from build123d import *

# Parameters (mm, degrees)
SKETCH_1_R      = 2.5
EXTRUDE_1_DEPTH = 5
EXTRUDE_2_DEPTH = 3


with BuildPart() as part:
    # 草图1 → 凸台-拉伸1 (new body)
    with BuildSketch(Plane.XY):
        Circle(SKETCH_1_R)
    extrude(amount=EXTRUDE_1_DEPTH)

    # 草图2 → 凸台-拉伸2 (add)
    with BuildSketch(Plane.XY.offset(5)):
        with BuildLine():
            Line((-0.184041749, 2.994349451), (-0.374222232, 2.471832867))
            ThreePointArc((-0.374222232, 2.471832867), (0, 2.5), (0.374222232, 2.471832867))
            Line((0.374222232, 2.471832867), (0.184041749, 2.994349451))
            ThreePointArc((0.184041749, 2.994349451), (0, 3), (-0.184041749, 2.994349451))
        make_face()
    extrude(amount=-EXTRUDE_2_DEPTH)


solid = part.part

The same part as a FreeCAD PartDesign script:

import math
import FreeCAD as App
import Part
import Sketcher
Q = App.Units.Quantity

doc = App.newDocument("Part")
body = doc.addObject("PartDesign::Body", "Body")

# Sketch on XY plane
sketch1 = body.newObject("Sketcher::SketchObject", "Sketch")
sketch1.AttachmentSupport = (doc.getObject("XY_Plane"), [""])
sketch1.MapMode = "FlatFace"
sketch1.addGeometry(Part.Circle(App.Vector(0, 0, 0), App.Vector(0, 0, 1), 2.5), False)
sketch1.addConstraint([
    Sketcher.Constraint("Coincident", 0, 3, -1, 1),
    Sketcher.Constraint("Diameter", 0, Q("5 mm")),
])
pad1 = body.newObject("PartDesign::Pad", "Pad")
pad1.Profile = sketch1
pad1.Length = 5

# Sketch on XY plane
sketch2 = body.newObject("Sketcher::SketchObject", "Sketch001")
sketch2.AttachmentSupport = (doc.getObject("XY_Plane"), [""])
sketch2.MapMode = "FlatFace"
sketch2.AttachmentOffset = App.Placement(App.Vector(0, 0, 5), App.Rotation())
sketch2.addGeometry([
    Part.LineSegment(App.Vector(-0.18, 2.99, 0), App.Vector(-0.37, 2.47, 0)),
    Part.ArcOfCircle(Part.Circle(App.Vector(0, 0, 0), App.Vector(0, 0, 1), 2.5), math.radians(81.39), math.radians(98.61)),
    Part.LineSegment(App.Vector(0.37, 2.47, 0), App.Vector(0.18, 2.99, 0)),
    Part.ArcOfCircle(Part.Circle(App.Vector(0, 0, 0), App.Vector(0, 0, 1), 3), math.radians(86.48), math.radians(93.52)),
], False)
sketch2.addConstraint([
    Sketcher.Constraint("Coincident", 0, 2, 1, 2),
    Sketcher.Constraint("Coincident", 1, 1, 2, 1),
    Sketcher.Constraint("Coincident", 2, 2, 3, 1),
    Sketcher.Constraint("Coincident", 3, 2, 0, 1),
    Sketcher.Constraint("Coincident", 1, 3, -1, 1),
    Sketcher.Constraint("Coincident", 3, 3, -1, 1),
    Sketcher.Constraint("Horizontal", 0, 2, 1, 1),
    Sketcher.Constraint("Horizontal", 2, 2, 3, 2),
    Sketcher.Constraint("Radius", 3, Q("3 mm")),
    Sketcher.Constraint("Radius", 1, Q("2.5 mm")),
    Sketcher.Constraint("Angle", 0, Q("-110 deg")),
    Sketcher.Constraint("Distance", 0, Q("0.556051 mm")),
])
pad2 = body.newObject("PartDesign::Pad", "Pad001")
pad2.Profile = sketch2
pad2.Length = 3
pad2.Reversed = True

doc.recompute()
